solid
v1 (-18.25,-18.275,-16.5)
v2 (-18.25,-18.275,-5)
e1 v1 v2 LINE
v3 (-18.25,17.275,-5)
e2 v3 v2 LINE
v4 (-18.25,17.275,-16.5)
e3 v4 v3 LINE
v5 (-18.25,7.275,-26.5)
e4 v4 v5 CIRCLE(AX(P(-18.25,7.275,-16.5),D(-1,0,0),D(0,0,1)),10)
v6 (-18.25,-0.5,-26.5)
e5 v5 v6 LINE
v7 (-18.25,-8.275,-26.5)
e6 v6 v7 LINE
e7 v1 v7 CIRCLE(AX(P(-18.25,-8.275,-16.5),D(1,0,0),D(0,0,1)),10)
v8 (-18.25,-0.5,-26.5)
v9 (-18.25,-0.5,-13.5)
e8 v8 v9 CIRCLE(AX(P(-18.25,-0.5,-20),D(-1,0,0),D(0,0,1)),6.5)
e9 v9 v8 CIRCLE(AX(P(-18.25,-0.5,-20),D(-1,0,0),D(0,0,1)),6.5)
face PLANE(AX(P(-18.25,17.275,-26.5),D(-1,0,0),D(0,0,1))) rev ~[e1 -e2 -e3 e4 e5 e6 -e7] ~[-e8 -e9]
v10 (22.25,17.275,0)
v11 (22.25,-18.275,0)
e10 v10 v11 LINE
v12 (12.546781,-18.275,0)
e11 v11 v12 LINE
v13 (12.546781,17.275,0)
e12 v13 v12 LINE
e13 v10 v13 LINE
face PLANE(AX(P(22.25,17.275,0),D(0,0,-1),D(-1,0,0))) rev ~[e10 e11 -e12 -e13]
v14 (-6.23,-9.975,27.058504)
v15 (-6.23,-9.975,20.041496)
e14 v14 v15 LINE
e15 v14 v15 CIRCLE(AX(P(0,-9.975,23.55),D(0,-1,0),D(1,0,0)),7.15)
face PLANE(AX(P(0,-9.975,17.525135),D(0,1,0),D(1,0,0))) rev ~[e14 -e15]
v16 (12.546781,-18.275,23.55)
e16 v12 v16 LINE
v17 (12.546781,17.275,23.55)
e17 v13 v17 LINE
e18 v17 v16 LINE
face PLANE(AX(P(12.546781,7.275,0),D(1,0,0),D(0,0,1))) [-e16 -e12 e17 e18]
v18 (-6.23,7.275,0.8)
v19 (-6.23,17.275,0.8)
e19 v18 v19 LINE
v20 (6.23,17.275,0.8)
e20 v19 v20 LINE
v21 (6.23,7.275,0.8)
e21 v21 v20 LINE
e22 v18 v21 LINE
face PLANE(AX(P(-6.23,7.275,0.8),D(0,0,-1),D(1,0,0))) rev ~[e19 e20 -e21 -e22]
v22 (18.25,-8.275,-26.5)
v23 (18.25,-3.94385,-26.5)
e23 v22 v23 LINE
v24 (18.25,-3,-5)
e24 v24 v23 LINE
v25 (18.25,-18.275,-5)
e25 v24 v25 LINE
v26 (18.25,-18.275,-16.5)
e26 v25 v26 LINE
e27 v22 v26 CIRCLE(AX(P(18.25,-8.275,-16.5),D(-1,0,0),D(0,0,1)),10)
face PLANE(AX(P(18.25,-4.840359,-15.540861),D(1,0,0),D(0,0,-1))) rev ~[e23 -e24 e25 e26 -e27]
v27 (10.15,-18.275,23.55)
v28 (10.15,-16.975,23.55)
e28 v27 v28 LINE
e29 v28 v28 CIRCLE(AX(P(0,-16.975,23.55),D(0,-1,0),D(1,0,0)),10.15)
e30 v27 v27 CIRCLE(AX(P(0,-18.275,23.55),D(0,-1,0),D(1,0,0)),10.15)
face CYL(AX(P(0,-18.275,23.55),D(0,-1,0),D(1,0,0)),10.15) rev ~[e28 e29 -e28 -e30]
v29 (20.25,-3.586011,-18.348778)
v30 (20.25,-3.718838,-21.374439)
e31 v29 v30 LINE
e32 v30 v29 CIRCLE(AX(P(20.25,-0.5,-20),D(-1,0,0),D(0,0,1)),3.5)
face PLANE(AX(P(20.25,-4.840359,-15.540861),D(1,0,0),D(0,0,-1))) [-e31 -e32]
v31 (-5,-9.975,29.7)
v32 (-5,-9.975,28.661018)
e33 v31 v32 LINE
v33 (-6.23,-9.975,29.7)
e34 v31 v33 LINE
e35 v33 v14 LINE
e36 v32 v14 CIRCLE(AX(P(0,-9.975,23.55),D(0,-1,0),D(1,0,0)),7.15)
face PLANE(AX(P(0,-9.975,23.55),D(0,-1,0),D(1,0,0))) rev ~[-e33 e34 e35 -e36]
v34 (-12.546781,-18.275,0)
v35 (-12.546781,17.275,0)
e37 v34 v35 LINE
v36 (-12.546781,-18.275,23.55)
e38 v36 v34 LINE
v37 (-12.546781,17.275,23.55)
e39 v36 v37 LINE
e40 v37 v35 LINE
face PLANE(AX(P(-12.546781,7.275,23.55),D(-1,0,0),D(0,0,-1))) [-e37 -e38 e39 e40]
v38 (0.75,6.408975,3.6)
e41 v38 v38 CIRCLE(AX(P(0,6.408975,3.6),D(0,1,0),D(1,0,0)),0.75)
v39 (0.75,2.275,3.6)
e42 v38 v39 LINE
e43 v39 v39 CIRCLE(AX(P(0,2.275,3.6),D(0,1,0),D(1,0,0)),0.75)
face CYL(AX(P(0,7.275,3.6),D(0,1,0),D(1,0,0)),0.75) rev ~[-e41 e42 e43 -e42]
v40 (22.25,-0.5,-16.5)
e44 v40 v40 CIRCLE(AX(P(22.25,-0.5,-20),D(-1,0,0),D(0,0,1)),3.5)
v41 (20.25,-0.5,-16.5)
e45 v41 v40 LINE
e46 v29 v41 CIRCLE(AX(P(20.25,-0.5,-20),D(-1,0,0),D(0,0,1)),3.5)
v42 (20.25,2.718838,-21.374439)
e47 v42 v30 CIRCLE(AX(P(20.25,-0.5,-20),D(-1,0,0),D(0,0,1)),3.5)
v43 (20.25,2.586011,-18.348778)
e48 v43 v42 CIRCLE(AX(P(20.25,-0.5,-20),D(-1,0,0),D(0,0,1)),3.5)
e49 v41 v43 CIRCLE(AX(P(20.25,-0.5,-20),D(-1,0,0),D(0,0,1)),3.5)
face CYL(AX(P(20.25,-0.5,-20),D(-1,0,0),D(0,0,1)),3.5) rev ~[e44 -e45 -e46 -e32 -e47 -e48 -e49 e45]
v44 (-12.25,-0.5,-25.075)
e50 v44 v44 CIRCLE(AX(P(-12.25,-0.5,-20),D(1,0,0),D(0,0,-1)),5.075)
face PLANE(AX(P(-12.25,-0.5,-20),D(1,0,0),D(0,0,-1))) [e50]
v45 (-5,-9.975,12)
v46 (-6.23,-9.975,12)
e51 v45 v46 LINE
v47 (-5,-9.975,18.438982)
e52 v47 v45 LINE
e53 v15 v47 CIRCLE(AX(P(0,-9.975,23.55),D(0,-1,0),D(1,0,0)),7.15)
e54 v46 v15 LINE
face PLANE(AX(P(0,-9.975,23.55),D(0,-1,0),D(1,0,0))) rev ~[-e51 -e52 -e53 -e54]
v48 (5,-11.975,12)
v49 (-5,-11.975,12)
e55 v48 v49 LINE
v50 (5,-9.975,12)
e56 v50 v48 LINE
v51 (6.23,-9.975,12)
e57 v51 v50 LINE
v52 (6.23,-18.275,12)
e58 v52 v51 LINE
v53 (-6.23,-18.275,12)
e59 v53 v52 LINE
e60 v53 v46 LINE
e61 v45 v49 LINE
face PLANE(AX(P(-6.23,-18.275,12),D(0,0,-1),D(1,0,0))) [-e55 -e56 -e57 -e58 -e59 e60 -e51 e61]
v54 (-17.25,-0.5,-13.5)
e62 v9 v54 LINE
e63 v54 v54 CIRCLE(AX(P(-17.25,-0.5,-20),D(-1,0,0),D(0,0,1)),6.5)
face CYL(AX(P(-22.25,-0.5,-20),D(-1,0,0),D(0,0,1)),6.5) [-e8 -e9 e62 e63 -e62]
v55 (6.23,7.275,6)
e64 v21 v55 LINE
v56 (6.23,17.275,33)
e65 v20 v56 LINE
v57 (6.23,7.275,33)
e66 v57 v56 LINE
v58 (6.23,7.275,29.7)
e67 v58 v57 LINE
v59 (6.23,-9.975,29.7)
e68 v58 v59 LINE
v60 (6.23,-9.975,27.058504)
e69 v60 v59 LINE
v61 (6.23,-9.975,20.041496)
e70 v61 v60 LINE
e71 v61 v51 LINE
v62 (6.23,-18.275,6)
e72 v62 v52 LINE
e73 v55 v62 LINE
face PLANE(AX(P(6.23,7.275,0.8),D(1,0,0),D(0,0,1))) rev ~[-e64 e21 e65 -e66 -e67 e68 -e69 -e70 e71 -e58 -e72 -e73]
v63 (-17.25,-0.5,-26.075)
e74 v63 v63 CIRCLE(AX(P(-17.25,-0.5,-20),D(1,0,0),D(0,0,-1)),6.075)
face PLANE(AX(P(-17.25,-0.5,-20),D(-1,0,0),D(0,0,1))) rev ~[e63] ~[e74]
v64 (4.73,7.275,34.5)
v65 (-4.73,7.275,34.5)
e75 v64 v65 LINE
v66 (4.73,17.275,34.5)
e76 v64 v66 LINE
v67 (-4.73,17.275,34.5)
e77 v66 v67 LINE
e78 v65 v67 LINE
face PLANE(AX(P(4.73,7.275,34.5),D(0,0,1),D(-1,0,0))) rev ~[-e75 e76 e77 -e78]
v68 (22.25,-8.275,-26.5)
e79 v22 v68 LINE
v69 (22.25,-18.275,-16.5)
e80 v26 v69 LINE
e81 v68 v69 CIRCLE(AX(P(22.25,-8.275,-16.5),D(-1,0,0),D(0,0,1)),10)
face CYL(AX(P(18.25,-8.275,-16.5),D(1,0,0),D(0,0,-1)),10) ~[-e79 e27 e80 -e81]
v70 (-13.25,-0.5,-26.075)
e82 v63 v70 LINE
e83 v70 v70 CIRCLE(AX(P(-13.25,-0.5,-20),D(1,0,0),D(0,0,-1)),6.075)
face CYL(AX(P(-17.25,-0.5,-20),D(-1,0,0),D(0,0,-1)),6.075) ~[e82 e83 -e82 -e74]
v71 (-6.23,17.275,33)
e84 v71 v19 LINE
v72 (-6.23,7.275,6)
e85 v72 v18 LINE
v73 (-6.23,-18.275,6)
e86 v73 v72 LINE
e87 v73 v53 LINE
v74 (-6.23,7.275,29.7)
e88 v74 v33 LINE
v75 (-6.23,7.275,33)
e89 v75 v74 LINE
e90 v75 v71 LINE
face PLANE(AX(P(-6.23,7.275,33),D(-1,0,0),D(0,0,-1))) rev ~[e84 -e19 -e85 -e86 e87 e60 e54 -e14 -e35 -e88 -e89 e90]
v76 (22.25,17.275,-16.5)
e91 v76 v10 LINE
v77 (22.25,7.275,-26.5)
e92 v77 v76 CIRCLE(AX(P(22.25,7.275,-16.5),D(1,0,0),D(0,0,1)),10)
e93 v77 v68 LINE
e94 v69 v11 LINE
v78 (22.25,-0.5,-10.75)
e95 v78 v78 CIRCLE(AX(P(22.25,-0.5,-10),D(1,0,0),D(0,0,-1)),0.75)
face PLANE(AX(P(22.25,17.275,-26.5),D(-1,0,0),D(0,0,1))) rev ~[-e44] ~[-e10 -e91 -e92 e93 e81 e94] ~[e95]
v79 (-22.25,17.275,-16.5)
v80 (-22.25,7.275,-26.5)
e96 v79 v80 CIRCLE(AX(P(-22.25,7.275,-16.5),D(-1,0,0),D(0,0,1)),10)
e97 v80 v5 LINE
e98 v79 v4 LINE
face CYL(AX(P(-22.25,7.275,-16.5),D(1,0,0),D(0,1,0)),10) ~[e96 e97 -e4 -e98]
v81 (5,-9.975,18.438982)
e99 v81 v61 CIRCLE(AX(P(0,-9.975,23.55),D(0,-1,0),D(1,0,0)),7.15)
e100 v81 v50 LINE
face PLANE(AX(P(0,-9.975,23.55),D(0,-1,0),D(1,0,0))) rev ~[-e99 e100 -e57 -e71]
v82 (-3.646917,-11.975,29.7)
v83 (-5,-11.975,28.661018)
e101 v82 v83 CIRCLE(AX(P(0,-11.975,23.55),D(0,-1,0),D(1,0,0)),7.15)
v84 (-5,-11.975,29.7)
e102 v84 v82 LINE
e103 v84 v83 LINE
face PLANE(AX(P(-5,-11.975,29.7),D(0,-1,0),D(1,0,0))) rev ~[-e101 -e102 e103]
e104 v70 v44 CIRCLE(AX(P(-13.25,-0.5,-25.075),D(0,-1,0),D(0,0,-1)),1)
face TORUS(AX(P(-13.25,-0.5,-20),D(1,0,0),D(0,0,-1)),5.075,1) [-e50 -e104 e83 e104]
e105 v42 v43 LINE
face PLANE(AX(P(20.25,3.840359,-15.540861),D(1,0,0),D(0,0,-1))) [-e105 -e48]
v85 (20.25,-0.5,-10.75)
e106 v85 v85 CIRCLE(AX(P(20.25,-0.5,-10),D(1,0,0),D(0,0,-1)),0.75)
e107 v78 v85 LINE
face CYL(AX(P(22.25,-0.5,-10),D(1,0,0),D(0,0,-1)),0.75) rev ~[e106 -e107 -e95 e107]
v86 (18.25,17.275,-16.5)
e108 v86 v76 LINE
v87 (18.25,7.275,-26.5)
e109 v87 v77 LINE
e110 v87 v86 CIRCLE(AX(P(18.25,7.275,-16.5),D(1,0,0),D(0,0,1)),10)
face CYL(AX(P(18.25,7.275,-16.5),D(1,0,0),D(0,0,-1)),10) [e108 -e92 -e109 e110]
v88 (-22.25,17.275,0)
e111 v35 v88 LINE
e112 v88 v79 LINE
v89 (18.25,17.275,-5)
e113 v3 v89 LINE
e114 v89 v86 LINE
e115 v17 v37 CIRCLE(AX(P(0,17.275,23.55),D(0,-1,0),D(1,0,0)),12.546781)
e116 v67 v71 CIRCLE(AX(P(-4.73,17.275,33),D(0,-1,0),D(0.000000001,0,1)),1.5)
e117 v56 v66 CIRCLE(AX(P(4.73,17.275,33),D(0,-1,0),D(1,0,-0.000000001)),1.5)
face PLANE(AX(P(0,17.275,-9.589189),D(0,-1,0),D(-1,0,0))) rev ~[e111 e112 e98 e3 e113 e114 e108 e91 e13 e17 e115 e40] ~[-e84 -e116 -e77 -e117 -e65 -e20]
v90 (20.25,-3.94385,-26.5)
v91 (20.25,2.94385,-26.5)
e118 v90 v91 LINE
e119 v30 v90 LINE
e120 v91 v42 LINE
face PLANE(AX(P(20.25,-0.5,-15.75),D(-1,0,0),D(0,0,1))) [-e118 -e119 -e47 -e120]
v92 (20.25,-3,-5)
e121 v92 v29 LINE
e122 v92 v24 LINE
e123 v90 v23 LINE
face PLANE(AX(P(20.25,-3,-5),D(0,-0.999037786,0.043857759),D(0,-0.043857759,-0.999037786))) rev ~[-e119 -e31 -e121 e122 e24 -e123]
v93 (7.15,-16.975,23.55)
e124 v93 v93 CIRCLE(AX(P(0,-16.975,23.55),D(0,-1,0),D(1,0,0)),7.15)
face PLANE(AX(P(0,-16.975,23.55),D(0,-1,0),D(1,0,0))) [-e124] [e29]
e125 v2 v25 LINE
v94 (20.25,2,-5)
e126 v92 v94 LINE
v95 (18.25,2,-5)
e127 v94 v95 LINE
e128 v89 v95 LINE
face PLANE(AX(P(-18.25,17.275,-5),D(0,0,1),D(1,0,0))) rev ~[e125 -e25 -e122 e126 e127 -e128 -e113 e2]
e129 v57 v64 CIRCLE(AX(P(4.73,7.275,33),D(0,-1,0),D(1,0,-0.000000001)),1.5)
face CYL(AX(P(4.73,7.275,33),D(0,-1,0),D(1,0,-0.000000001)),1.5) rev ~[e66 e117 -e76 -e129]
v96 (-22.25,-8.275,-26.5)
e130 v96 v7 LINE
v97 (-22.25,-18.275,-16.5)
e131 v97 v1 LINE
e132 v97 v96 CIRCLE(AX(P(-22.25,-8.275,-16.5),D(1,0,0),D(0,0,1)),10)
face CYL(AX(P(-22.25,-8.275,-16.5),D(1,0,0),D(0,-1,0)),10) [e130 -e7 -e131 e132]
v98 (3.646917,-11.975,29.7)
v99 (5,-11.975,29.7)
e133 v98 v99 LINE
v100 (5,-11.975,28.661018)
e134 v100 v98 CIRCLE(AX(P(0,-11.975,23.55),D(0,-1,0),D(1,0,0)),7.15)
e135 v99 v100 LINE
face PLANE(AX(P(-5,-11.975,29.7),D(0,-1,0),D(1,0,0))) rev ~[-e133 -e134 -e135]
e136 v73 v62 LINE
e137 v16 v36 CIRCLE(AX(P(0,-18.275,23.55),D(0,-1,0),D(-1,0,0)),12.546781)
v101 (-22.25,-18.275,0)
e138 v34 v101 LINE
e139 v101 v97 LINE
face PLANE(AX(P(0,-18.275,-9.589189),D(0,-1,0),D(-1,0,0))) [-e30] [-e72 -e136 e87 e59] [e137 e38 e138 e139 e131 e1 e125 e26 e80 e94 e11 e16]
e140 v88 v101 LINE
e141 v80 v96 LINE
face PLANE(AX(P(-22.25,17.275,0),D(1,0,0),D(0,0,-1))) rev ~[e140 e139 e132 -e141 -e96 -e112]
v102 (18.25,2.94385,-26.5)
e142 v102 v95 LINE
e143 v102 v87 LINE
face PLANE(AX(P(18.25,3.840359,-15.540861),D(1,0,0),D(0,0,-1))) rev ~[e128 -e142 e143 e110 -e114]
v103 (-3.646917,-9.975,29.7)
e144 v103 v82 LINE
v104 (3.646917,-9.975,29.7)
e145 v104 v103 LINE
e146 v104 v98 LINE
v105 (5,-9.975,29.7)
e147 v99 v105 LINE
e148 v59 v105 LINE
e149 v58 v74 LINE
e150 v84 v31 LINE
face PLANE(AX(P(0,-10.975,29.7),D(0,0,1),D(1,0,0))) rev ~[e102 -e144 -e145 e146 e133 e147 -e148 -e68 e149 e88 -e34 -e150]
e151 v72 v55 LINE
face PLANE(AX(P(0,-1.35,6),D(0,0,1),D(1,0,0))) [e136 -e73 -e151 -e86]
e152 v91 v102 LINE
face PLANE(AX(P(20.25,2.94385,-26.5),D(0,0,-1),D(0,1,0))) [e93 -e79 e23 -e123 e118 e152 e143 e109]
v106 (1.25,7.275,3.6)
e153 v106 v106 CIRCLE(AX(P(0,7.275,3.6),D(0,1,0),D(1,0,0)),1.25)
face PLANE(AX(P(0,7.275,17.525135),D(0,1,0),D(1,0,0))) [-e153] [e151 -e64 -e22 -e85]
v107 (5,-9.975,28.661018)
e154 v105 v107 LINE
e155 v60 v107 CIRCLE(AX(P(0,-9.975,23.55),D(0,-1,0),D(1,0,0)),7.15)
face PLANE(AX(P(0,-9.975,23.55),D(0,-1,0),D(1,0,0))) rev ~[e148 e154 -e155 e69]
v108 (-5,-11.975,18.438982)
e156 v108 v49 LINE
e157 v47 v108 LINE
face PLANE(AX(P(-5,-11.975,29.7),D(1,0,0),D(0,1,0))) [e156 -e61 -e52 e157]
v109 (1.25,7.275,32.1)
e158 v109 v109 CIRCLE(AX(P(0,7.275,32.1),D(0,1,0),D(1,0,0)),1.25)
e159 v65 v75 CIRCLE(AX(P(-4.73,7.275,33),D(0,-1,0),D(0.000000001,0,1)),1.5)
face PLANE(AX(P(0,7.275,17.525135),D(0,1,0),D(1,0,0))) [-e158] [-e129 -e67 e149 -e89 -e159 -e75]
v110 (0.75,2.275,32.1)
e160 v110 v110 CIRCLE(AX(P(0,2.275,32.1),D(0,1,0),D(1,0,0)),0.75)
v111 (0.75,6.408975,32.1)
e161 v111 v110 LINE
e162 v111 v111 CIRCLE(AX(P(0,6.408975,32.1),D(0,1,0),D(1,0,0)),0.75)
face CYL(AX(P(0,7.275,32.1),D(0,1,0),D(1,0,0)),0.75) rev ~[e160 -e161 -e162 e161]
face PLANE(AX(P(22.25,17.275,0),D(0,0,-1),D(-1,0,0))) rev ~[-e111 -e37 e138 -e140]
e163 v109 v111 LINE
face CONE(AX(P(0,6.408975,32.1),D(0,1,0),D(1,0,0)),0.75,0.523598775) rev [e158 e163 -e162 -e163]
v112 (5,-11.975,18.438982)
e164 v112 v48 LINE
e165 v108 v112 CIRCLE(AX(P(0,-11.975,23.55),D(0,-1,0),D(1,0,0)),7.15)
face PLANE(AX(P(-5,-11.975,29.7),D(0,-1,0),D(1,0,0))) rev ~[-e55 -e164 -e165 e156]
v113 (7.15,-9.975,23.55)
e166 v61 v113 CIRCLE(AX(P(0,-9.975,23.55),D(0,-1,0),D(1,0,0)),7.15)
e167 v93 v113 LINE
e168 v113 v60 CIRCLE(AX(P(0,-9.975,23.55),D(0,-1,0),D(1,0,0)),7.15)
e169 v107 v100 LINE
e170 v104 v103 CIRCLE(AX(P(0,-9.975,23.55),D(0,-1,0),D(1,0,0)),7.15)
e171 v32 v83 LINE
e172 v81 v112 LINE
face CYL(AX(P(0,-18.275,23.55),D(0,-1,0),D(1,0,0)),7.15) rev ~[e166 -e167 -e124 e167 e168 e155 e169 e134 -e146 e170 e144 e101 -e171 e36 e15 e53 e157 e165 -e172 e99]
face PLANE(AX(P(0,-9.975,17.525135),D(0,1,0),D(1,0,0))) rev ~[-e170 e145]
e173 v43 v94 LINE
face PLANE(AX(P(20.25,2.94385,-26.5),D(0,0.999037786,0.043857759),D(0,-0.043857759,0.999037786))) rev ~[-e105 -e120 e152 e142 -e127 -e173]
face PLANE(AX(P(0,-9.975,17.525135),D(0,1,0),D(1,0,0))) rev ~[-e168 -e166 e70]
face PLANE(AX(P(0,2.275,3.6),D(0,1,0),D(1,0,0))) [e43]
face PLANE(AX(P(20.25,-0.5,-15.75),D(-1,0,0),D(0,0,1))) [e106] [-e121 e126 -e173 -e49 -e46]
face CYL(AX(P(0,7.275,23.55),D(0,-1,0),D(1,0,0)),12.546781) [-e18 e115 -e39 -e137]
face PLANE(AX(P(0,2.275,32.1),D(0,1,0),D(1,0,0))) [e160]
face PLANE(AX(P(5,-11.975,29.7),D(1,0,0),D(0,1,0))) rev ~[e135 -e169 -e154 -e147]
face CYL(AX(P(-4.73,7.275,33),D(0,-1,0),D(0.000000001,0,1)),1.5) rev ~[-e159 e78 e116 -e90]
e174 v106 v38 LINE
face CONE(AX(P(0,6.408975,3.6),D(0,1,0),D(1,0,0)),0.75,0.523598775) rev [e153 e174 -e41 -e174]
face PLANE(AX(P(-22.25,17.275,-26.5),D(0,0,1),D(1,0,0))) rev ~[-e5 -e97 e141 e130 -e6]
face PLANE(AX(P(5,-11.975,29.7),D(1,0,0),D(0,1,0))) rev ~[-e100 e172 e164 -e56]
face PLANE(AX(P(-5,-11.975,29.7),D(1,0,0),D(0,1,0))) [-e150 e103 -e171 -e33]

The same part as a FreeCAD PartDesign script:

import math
import FreeCAD as App
import Part
import Sketcher
from FreeCAD import Vector


def edges_at(feature, points):
    """Names of the edges that pass closest to the given points."""
    edges = feature.Shape.Edges
    near = lambda p: min(range(len(edges)), key=lambda i: edges[i].distToShape(Part.Vertex(*p))[0])
    return sorted({f"Edge{near(p) + 1}" for p in points})

doc = App.newDocument("Part")
params = doc.addObject("Spreadsheet::Sheet", "Params")
for row, (alias, value) in enumerate([
    ("sketch1_width", "12.46 mm"),
    ("sketch1_height", "17.25 mm"),
    ("pad1_length", "6 mm"),
    ("sketch2_diameter", "22.3 mm"),
    ("pad2_length", "8.3 mm"),
    ("pad2_length2", "17.25 mm"),
    ("sketch3_height", "29.7 mm"),
    ("sketch3_width", "12.46 mm"),
    ("sketch3_height2", "23.55 mm"),
    ("pad3_length", "17.25 mm"),
    ("sketch4_diameter", "1.5 mm"),
    ("pocket1_length", "5 mm"),
    ("chamfer_size", "0.5 mm"),
    ("chamfer_size2", "0.866025 mm"),
    ("sketch5_height", "23.7 mm"),
    ("sketch5_width", "12.46 mm"),
    ("pocket2_length", "17.25 mm"),
    ("sketch6_height", "23.55 mm"),
    ("pad4_length", "8.3 mm"),
    ("sketch7_radius", "1.5 mm"),
    ("sketch7_height", "32.2 mm"),
    ("sketch7_width", "12.46 mm"),
    ("sketch7_height2", "23.55 mm"),
    ("pad5_length", "10 mm"),
    ("sketch8_diameter", "22.3 mm"),
    ("sketch8_diameter2", "14.3 mm"),
    ("pad6_length", "8.3 mm"),
    ("sketch9_diameter", "20.3 mm"),
    ("sketch9_diameter2", "14.3 mm"),
    ("pocket3_length", "1.3 mm"),
    ("sketch10_width", "10 mm"),
    ("sketch10_height", "2 mm"),
    ("pocket4_length", "23.7 mm"),
    ("sketch11_height", "6 mm"),
    ("sketch11_width", "12.46 mm"),
    ("pocket5_length", "8.3 mm"),
    ("sketch12_width", "4 mm"),
    ("sketch12_width2", "36.5 mm"),
    ("sketch12_height", "26.5 mm"),
    ("sketch12_height2", "21.5 mm"),
    ("pad7_length", "35.55 mm"),
    ("sketch13_height", "21.5 mm"),
    ("pocket6_length", "2 mm"),
    ("sketch14_diameter", "7 mm"),
    ("fillet_radius", "10 mm"),
    ("sketch15_diameter", "13 mm"),
    ("pad8_length", "5 mm"),
    ("sketch16_diameter", "12.15 mm"),
    ("pad9_length", "5 mm"),
    ("fillet2_radius", "1 mm"),
    ("sketch17_height", "21.5 mm"),
    ("pad10_length", "2 mm"),
    ("sketch18_diameter", "1.5 mm"),
], start=1):
    params.set(f"A{row}", alias)
    params.set(f"B{row}", "=" + value)
    params.setAlias(f"B{row}", alias)

body = doc.addObject("PartDesign::Body", "Body")

sketch1 = body.newObject("Sketcher::SketchObject", "Sketch")
sketch1.AttachmentSupport = (doc.getObject("XY_Plane"), [""])
sketch1.MapMode = "FlatFace"
sketch1.addGeometry(Part.LineSegment(Vector(-6, 7, 0), Vector(-6, -10, 0)), False)
sketch1.addGeometry(Part.LineSegment(Vector(-6, -10, 0), Vector(6, -10, 0)), False)
sketch1.addGeometry(Part.LineSegment(Vector(6, -10, 0), Vector(6, 7, 0)), False)
sketch1.addGeometry(Part.LineSegment(Vector(6, 7, 0), Vector(-6, 7, 0)), False)
sketch1.addConstraint(Sketcher.Constraint("Coincident", 0, 2, 1, 1))
sketch1.addConstraint(Sketcher.Constraint("Coincident", 1, 2, 2, 1))
sketch1.addConstraint(Sketcher.Constraint("Coincident", 2, 2, 3, 1))
sketch1.addConstraint(Sketcher.Constraint("Coincident", 3, 2, 0, 1))
sketch1.addConstraint(Sketcher.Constraint("Vertical", 0))
sketch1.addConstraint(Sketcher.Constraint("Horizontal", 1))
sketch1.addConstraint(Sketcher.Constraint("Vertical", 2))
sketch1.addConstraint(Sketcher.Constraint("Horizontal", 3))
sketch1.addConstraint(Sketcher.Constraint("DistanceX", 1, 1, 1, 2, 12.46))
sketch1.addConstraint(Sketcher.Constraint("DistanceY", 0, 2, 0, 1, 17.25))
sketch1.addConstraint(Sketcher.Constraint("DistanceX", 0, 2, -1, 1, 6.23))
sketch1.addConstraint(Sketcher.Constraint("DistanceY", 0, 2, -1, 1, 9.975))
sketch1.setExpression("Constraints[8]", "Params.sketch1_width")
sketch1.setExpression("Constraints[9]", "Params.sketch1_height")
pad1 = body.newObject("PartDesign::Pad", "Pad")
pad1.Profile = sketch1
pad1.setExpression("Length", "Params.pad1_length")
body2 = doc.addObject("PartDesign::Body", "Body001")

sketch2 = body2.newObject("Sketcher::SketchObject", "Sketch001")
sketch2.AttachmentSupport = (doc.getObject("XZ_Plane001"), [""])
sketch2.MapMode = "FlatFace"
sketch2.AttachmentOffset = App.Placement(Vector(0, 0, 9.975), App.Rotation())
sketch2.addGeometry(Part.Circle(Vector(0, 24, 0), Vector(0, 0, 1), 13), False)
sketch2.addGeometry(Part.Circle(Vector(0, 24, 0), Vector(0, 0, 1), 11), False)
sketch2.addConstraint(Sketcher.Constraint("Coincident", 1, 3, 0, 3))
sketch2.addConstraint(Sketcher.Constraint("PointOnObject", 0, 3, -2))
sketch2.addConstraint(Sketcher.Constraint("Diameter", 1, 22.3))
sketch2.addConstraint(Sketcher.Constraint("DistanceY", -1, 1, 0, 3, 23.55))
sketch2.addConstraint(Sketcher.Constraint("Diameter", 0, 25.093562))
sketch2.setExpression("Constraints[2]", "Params.sketch2_diameter")
pad2 = body2.newObject("PartDesign::Pad", "Pad001")
pad2.Profile = sketch2
pad2.Type = "TwoLengths"
pad2.setExpression("Length", "Params.pad2_length")
pad2.setExpression("Length2", "Params.pad2_length2")
body.AllowCompound = True
doc.recompute()

boolean = body.newObject("PartDesign::Boolean", "Boolean")
boolean.Type = "Fuse"
boolean.addObjects([body2])

sketch3 = body.newObject("Sketcher::SketchObject", "Sketch002")
sketch3.AttachmentSupport = (doc.getObject("XZ_Plane"), [""])
sketch3.MapMode = "FlatFace"
sketch3.AttachmentOffset = App.Placement(Vector(0, 0, -7.275), App.Rotation())
sketch3.addGeometry(Part.LineSegment(Vector(13, 24, 0), Vector(13, 0, 0)), False)
sketch3.addGeometry(Part.LineSegment(Vector(13, 0, 0), Vector(6, 0, 0)), False)
sketch3.addGeometry(Part.LineSegment(Vector(6, 0, 0), Vector(6, 30, 0)), False)
sketch3.addGeometry(Part.LineSegment(Vector(6, 30, 0), Vector(-6, 30, 0)), False)
sketch3.addGeometry(Part.LineSegment(Vector(-6, 30, 0), Vector(-6, 0, 0)), False)
sketch3.addGeometry(Part.LineSegment(Vector(-6, 0, 0), Vector(-13, 0, 0)), False)
sketch3.addGeometry(Part.LineSegment(Vector(-13, 0, 0), Vector(-13, 24, 0)), False)
sketch3.addGeometry(Part.ArcOfCircle(Part.Circle(Vector(0, 24, 0), Vector(0, 0, 1), 13), math.radians(0), math.radians(180)), False)
sketch3.addConstraint(Sketcher.Constraint("Coincident", 0, 2, 1, 1))
sketch3.addConstraint(Sketcher.Constraint("Coincident", 1, 2, 2, 1))
sketch3.addConstraint(Sketcher.Constraint("Coincident", 2, 2, 3, 1))
sketch3.addConstraint(Sketcher.Constraint("Coincident", 3, 2, 4, 1))
sketch3.addConstraint(Sketcher.Constraint("Coincident", 4, 2, 5, 1))
sketch3.addConstraint(Sketcher.Constraint("Coincident", 5, 2, 6, 1))
sketch3.addConstraint(Sketcher.Constraint("Tangent", 6, 2, 7, 2))
sketch3.addConstraint(Sketcher.Constraint("Tangent", 7, 1, 0, 1))
sketch3.addConstraint(Sketcher.Constraint("Vertical", 0))
sketch3.addConstraint(Sketcher.Constraint("Horizontal", 1))
sketch3.addConstraint(Sketcher.Constraint("Vertical", 2))
sketch3.addConstraint(Sketcher.Constraint("Horizontal", 3))
sketch3.addConstraint(Sketcher.Constraint("Vertical", 4))
sketch3.addConstraint(Sketcher.Constraint("Horizontal", 5))
sketch3.addConstraint(Sketcher.Constraint("Vertical", 6))
sketch3.addConstraint(Sketcher.Constraint("Symmetric", 1, 2, 4, 2, -1, 1))
sketch3.addConstraint(Sketcher.Constraint("Symmetric", 0, 2, 5, 2, -2))
sketch3.addConstraint(Sketcher.Constraint("DistanceY", 2, 1, 2, 2, 29.7))
sketch3.addConstraint(Sketcher.Constraint("DistanceX", 3, 2, 3, 1, 12.46))
sketch3.addConstraint(Sketcher.Constraint("DistanceY", 0, 2, 0, 1, 23.55))
sketch3.addConstraint(Sketcher.Constraint("Radius", 7, 12.546781))
sketch3.setExpression("Constraints[17]", "Params.sketch3_height")
sketch3.setExpression("Constraints[18]", "Params.sketch3_width")
sketch3.setExpression("Constraints[19]", "Params.sketch3_height2")
pad3 = body.newObject("PartDesign::Pad", "Pad002")
pad3.Profile = sketch3
pad3.setExpression("Length", "Params.pad3_length")

sketch4 = body.newObject("Sketcher::SketchObject", "Sketch003")
sketch4.AttachmentSupport = (doc.getObject("XZ_Plane"), [""])
sketch4.MapMode = "FlatFace"
sketch4.AttachmentOffset = App.Placement(Vector(0, 0, -7.275), App.Rotation())
sketch4.addGeometry(Part.Circle(Vector(0, 3.6, 0), Vector(0, 0, 1), 0.8), False)
sketch4.addGeometry(Part.Circle(Vector(0, 32.1, 0), Vector(0, 0, 1), 0.8), False)
sketch4.addConstraint(Sketcher.Constraint("Equal", 0, 1))
sketch4.addConstraint(Sketcher.Constraint("PointOnObject", 0, 3, -2))
sketch4.addConstraint(Sketcher.Constraint("PointOnObject", 1, 3, -2))
sketch4.addConstraint(Sketcher.Constraint("Diameter", 0, 1.5))
sketch4.addConstraint(Sketcher.Constraint("DistanceY", -1, 1, 0, 3, 3.6))
sketch4.addConstraint(Sketcher.Constraint("DistanceY", -1, 1, 1, 3, 32.1))
sketch4.setExpression("Constraints[3]", "Params.sketch4_diameter")
pocket1 = body.newObject("PartDesign::Pocket", "Pocket")
pocket1.Profile = sketch4
pocket1.setExpression("Length", "Params.pocket1_length")
pocket1.Reversed = True
doc.recompute()

chamfer = body.newObject("PartDesign::Chamfer", "Chamfer")
chamfer.Base = (pocket1, edges_at(pocket1, [(-0.75, 7.275, 3.6), (-0.75, 7.275, 32.1)]))
chamfer.ChamferType = "Two distances"
chamfer.setExpression("Size", "Params.chamfer_size")
chamfer.setExpression("Size2", "Params.chamfer_size2")

sketch5 = body.newObject("Sketcher::SketchObject", "Sketch004")
sketch5.AttachmentSupport = (doc.getObject("XZ_Plane"), [""])
sketch5.MapMode = "FlatFace"
sketch5.AttachmentOffset = App.Placement(Vector(0, 0, -7.275), App.Rotation())
sketch5.addGeometry(Part.LineSegment(Vector(-6, 6, 0), Vector(-6, 30, 0)), False)
sketch5.addGeometry(Part.LineSegment(Vector(-6, 30, 0), Vector(6, 30, 0)), False)
sketch5.addGeometry(Part.LineSegment(Vector(6, 30, 0), Vector(6, 6, 0)), False)
sketch5.addGeometry(Part.LineSegment(Vector(6, 6, 0), Vector(-6, 6, 0)), False)
sketch5.addConstraint(Sketcher.Constraint("Coincident", 0, 2, 1, 1))
sketch5.addConstraint(Sketcher.Constraint("Coincident", 1, 2, 2, 1))
sketch5.addConstraint(Sketcher.Constraint("Coincident", 2, 2, 3, 1))
sketch5.addConstraint(Sketcher.Constraint("Coincident", 3, 2, 0, 1))
sketch5.addConstraint(Sketcher.Constraint("Vertical", 0))
sketch5.addConstraint(Sketcher.Constraint("Horizontal", 1))
sketch5.addConstraint(Sketcher.Constraint("Vertical", 2))
sketch5.addConstraint(Sketcher.Constraint("Horizontal", 3))
sketch5.addConstraint(Sketcher.Constraint("DistanceY", 0, 1, 0, 2, 23.7))
sketch5.addConstraint(Sketcher.Constraint("DistanceY", -1, 1, 2, 2, 6.0))
sketch5.addConstraint(Sketcher.Constraint("DistanceX", 1, 1, 1, 2, 12.46))
sketch5.addConstraint(Sketcher.Constraint("DistanceX", 0, 2, -1, 1, 6.23))
sketch5.setExpression("Constraints[8]", "Params.sketch5_height")
sketch5.setExpression("Constraints[10]", "Params.sketch5_width")
pocket2 = body.newObject("PartDesign::Pocket", "Pocket001")
pocket2.Profile = sketch5
pocket2.setExpression("Length", "Params.pocket2_length")
pocket2.Reversed = True

sketch6 = body.newObject("Sketcher::SketchObject", "Sketch005")
sketch6.AttachmentSupport = (doc.getObject("XZ_Plane"), [""])
sketch6.MapMode = "FlatFace"
sketch6.AttachmentOffset = App.Placement(Vector(0, 0, 18.275), App.Rotation())
sketch6.addGeometry(Part.LineSegment(Vector(-13, 24, 0), Vector(-13, 0, 0)), False)
sketch6.addGeometry(Part.LineSegment(Vector(-13, 0, 0), Vector(13, 0, 0)), False)
sketch6.addGeometry(Part.LineSegment(Vector(13, 0, 0), Vector(13, 24, 0)), False)
sketch6.addGeometry(Part.ArcOfCircle(Part.Circle(Vector(0, 24, 0), Vector(0, 0, 1), 13), math.radians(180), math.radians(360)), False)
sketch6.addConstraint(Sketcher.Constraint("Coincident", 0, 2, 1, 1))
sketch6.addConstraint(Sketcher.Constraint("Coincident", 1, 2, 2, 1))
sketch6.addConstraint(Sketcher.Constraint("Tangent", 2, 2, 3, 2))
sketch6.addConstraint(Sketcher.Constraint("Tangent", 3, 1, 0, 1))
sketch6.addConstraint(Sketcher.Constraint("Vertical", 0))
sketch6.addConstraint(Sketcher.Constraint("Horizontal", 1))
sketch6.addConstraint(Sketcher.Constraint("Vertical", 2))
sketch6.addConstraint(Sketcher.Constraint("Symmetric", 0, 2, 1, 2, -1, 1))
sketch6.addConstraint(Sketcher.Constraint("DistanceY", 0, 2, 0, 1, 23.55))
sketch6.addConstraint(Sketcher.Constraint("Radius", 3, 12.546781))
sketch6.setExpression("Constraints[8]", "Params.sketch6_height")
pad4 = body.newObject("PartDesign::Pad", "Pad003")
pad4.Profile = sketch6
pad4.setExpression("Length", "Params.pad4_length")
pad4.Reversed = True

sketch7 = body.newObject("Sketcher::SketchObject", "Sketch006")
sketch7.AttachmentSupport = (doc.getObject("XZ_Plane"), [""])
sketch7.MapMode = "FlatFace"
sketch7.AttachmentOffset = App.Placement(Vector(0, 0, -7.275), App.Rotation())
sketch7.addGeometry(Part.LineSegment(Vector(12.5, 0, 0), Vector(-12.5, 0, 0)), False)
sketch7.addGeometry(Part.LineSegment(Vector(-12.5, 0, 0), Vector(-12.5, 23.6, 0)), False)
sketch7.addGeometry(Part.ArcOfCircle(Part.Circle(Vector(0, 23.6, 0), Vector(0, 0, 1), 12.5), math.radians(0), math.radians(180)), False)
sketch7.addGeometry(Part.LineSegment(Vector(12.5, 23.6, 0), Vector(12.5, 0, 0)), False)
sketch7.addGeometry(Part.LineSegment(Vector(-6.2, 0.8, 0), Vector(6.2, 0.8, 0)), False)
sketch7.addGeometry(Part.LineSegment(Vector(6.2, 0.8, 0), Vector(6.2, 33, 0)), False)
sketch7.addGeometry(Part.ArcOfCircle(Part.Circle(Vector(4.7, 33, 0), Vector(0, 0, 1), 1.5), math.radians(0), math.radians(90)), False)
sketch7.addGeometry(Part.LineSegment(Vector(4.7, 34.5, 0), Vector(-4.7, 34.5, 0)), False)
sketch7.addGeometry(Part.ArcOfCircle(Part.Circle(Vector(-4.7, 33, 0), Vector(0, 0, 1), 1.5), math.radians(90), math.radians(180)), False)
sketch7.addGeometry(Part.LineSegment(Vector(-6.2, 33, 0), Vector(-6.2, 0.8, 0)), False)
sketch7.addConstraint(Sketcher.Constraint("Coincident", 0, 2, 1, 1))
sketch7.addConstraint(Sketcher.Constraint("Tangent", 1, 2, 2, 2))
sketch7.addConstraint(Sketcher.Constraint("Tangent", 2, 1, 3, 1))
sketch7.addConstraint(Sketcher.Constraint("Coincident", 3, 2, 0, 1))
sketch7.addConstraint(Sketcher.Constraint("Coincident", 4, 2, 5, 1))
sketch7.addConstraint(Sketcher.Constraint("Tangent", 5, 2, 6, 1))
sketch7.addConstraint(Sketcher.Constraint("Tangent", 6, 2, 7, 1))
sketch7.addConstraint(Sketcher.Constraint("Tangent", 7, 2, 8, 1))
sketch7.addConstraint(Sketcher.Constraint("Tangent", 8, 2, 9, 1))
sketch7.addConstraint(Sketcher.Constraint("Coincident", 9, 2, 4, 1))
sketch7.addConstraint(Sketcher.Constraint("Horizontal", 0))
sketch7.addConstraint(Sketcher.Constraint("Vertical", 1))
sketch7.addConstraint(Sketcher.Constraint("Vertical", 3))
sketch7.addConstraint(Sketcher.Constraint("Horizontal", 4))
sketch7.addConstraint(Sketcher.Constraint("Vertical", 5))
sketch7.addConstraint(Sketcher.Constraint("Horizontal", 7))
sketch7.addConstraint(Sketcher.Constraint("Vertical", 9))
sketch7.addConstraint(Sketcher.Constraint("Equal", 6, 8))
sketch7.addConstraint(Sketcher.Constraint("Symmetric", 0, 2, 3, 2, -1, 1))
sketch7.addConstraint(Sketcher.Constraint("Radius", 6, 1.5))
sketch7.addConstraint(Sketcher.Constraint("DistanceY", 5, 1, 5, 2, 32.2))
sketch7.addConstraint(Sketcher.Constraint("DistanceY", -1, 1, 6, 3, 33.0))
sketch7.addConstraint(Sketcher.Constraint("DistanceX", 4, 1, 4, 2, 12.46))
sketch7.addConstraint(Sketcher.Constraint("DistanceY", 1, 1, 1, 2, 23.55))
sketch7.addConstraint(Sketcher.Constraint("DistanceX", -1, 1, 6, 3, 4.73))
sketch7.addConstraint(Sketcher.Constraint("Radius", 2, 12.546781))
sketch7.setExpression("Constraints[19]", "Params.sketch7_radius")
sketch7.setExpression("Constraints[20]", "Params.sketch7_height")
sketch7.setExpression("Constraints[22]", "Params.sketch7_width")
sketch7.setExpression("Constraints[23]", "Params.sketch7_height2")
pad5 = body.newObject("PartDesign::Pad", "Pad004")
pad5.Profile = sketch7
pad5.setExpression("Length", "Params.pad5_length")
pad5.Reversed = True

sketch8 = body.newObject("Sketcher::SketchObject", "Sketch007")
sketch8.AttachmentSupport = (doc.getObject("XZ_Plane"), [""])
sketch8.MapMode = "FlatFace"
sketch8.AttachmentOffset = App.Placement(Vector(0, 0, 18.275), App.Rotation())
sketch8.addGeometry(Part.Circle(Vector(0, 24, 0), Vector(0, 0, 1), 11), False)
sketch8.addGeometry(Part.Circle(Vector(0, 24, 0), Vector(0, 0, 1), 7), False)
sketch8.addConstraint(Sketcher.Constraint("Coincident", 1, 3, 0, 3))
sketch8.addConstraint(Sketcher.Constraint("PointOnObject", 0, 3, -2))
sketch8.addConstraint(Sketcher.Constraint("Diameter", 0, 22.3))
sketch8.addConstraint(Sketcher.Constraint("Diameter", 1, 14.3))
sketch8.addConstraint(Sketcher.Constraint("DistanceY", -1, 1, 0, 3, 23.55))
sketch8.setExpression("Constraints[2]", "Params.sketch8_diameter")
sketch8.setExpression("Constraints[3]", "Params.sketch8_diameter2")
pad6 = body.newObject("PartDesign::Pad", "Pad005")
pad6.Profile = sketch8
pad6.setExpression("Length", "Params.pad6_length")
pad6.Reversed = True

sketch9 = body.newObject("Sketcher::SketchObject", "Sketch008")
sketch9.AttachmentSupport = (doc.getObject("XZ_Plane"), [""])
sketch9.MapMode = "FlatFace"
sketch9.AttachmentOffset = App.Placement(Vector(0, 0, 18.275), App.Rotation())
sketch9.addGeometry(Part.Circle(Vector(0, 24, 0), Vector(0, 0, 1), 10), False)
sketch9.addGeometry(Part.Circle(Vector(0, 24, 0), Vector(0, 0, 1), 7), False)
sketch9.addConstraint(Sketcher.Constraint("Coincident", 1, 3, 0, 3))
sketch9.addConstraint(Sketcher.Constraint("PointOnObject", 0, 3, -2))
sketch9.addConstraint(Sketcher.Constraint("Diameter", 0, 20.3))
sketch9.addConstraint(Sketcher.Constraint("Diameter", 1, 14.3))
sketch9.addConstraint(Sketcher.Constraint("DistanceY", -1, 1, 0, 3, 23.55))
sketch9.setExpression("Constraints[2]", "Params.sketch9_diameter")
sketch9.setExpression("Constraints[3]", "Params.sketch9_diameter2")
pocket3 = body.newObject("PartDesign::Pocket", "Pocket002")
pocket3.Profile = sketch9
pocket3.setExpression("Length", "Params.pocket3_length")

sketch10 = body.newObject("Sketcher::SketchObject", "Sketch009")
sketch10.AttachmentSupport = (doc.getObject("XY_Plane"), [""])
sketch10.MapMode = "FlatFace"
sketch10.AttachmentOffset = App.Placement(Vector(0, 0, 29.7), App.Rotation())
sketch10.addGeometry(Part.LineSegment(Vector(-5, -10, 0), Vector(-5, -12, 0)), False)
sketch10.addGeometry(Part.LineSegment(Vector(-5, -12, 0), Vector(5, -12, 0)), False)
sketch10.addGeometry(Part.LineSegment(Vector(5, -12, 0), Vector(5, -10, 0)), False)
sketch10.addGeometry(Part.LineSegment(Vector(5, -10, 0), Vector(-5, -10, 0)), False)
sketch10.addConstraint(Sketcher.Constraint("Coincident", 0, 2, 1, 1))
sketch10.addConstraint(Sketcher.Constraint("Coincident", 1, 2, 2, 1))
sketch10.addConstraint(Sketcher.Constraint("Coincident", 2, 2, 3, 1))
sketch10.addConstraint(Sketcher.Constraint("Coincident", 3, 2, 0, 1))
sketch10.addConstraint(Sketcher.Constraint("Vertical", 0))
sketch10.addConstraint(Sketcher.Constraint("Horizontal", 1))
sketch10.addConstraint(Sketcher.Constraint("Vertical", 2))
sketch10.addConstraint(Sketcher.Constraint("Horizontal", 3))
sketch10.addConstraint(Sketcher.Constraint("DistanceX", 1, 1, 1, 2, 10.0))
sketch10.addConstraint(Sketcher.Constraint("DistanceY", 0, 2, 0, 1, 2.0))
sketch10.addConstraint(Sketcher.Constraint("DistanceX", 0, 2, -1, 1, 5.0))
sketch10.addConstraint(Sketcher.Constraint("DistanceY", 0, 2, -1, 1, 11.975))
sketch10.setExpression("Constraints[8]", "Params.sketch10_width")
sketch10.setExpression("Constraints[9]", "Params.sketch10_height")
pocket4 = body.newObject("PartDesign::Pocket", "Pocket003")
pocket4.Profile = sketch10
pocket4.setExpression("Length", "Params.pocket4_length")

sketch11 = body.newObject("Sketcher::SketchObject", "Sketch010")
sketch11.AttachmentSupport = (doc.getObject("XZ_Plane"), [""])
sketch11.MapMode = "FlatFace"
sketch11.AttachmentOffset = App.Placement(Vector(0, 0, 18.275), App.Rotation())
sketch11.addGeometry(Part.LineSegment(Vector(-6, 12, 0), Vector(-6, 6, 0)), False)
sketch11.addGeometry(Part.LineSegment(Vector(-6, 6, 0), Vector(6, 6, 0)), False)
sketch11.addGeometry(Part.LineSegment(Vector(6, 6, 0), Vector(6, 12, 0)), False)
sketch11.addGeometry(Part.LineSegment(Vector(6, 12, 0), Vector(-6, 12, 0)), False)
sketch11.addConstraint(Sketcher.Constraint("Coincident", 0, 2, 1, 1))
sketch11.addConstraint(Sketcher.Constraint("Coincident", 1, 2, 2, 1))
sketch11.addConstraint(Sketcher.Constraint("Coincident", 2, 2, 3, 1))
sketch11.addConstraint(Sketcher.Constraint("Coincident", 3, 2, 0, 1))
sketch11.addConstraint(Sketcher.Constraint("Vertical", 0))
sketch11.addConstraint(Sketcher.Constraint("Horizontal", 1))
sketch11.addConstraint(Sketcher.Constraint("Vertical", 2))
sketch11.addConstraint(Sketcher.Constraint("Horizontal", 3))
sketch11.addConstraint(Sketcher.Constraint("DistanceY", 0, 2, 0, 1, 6.0))
sketch11.addConstraint(Sketcher.Constraint("DistanceY", -1, 1, 0, 2, 6.0))
sketch11.addConstraint(Sketcher.Constraint("DistanceX", 1, 1, 1, 2, 12.46))
sketch11.addConstraint(Sketcher.Constraint("DistanceX", 0, 2, -1, 1, 6.23))
sketch11.setExpression("Constraints[8]", "Params.sketch11_height")
sketch11.setExpression("Constraints[10]", "Params.sketch11_width")
pocket5 = body.newObject("PartDesign::Pocket", "Pocket004")
pocket5.Profile = sketch11
pocket5.setExpression("Length", "Params.pocket5_length")

sketch12 = body.newObject("Sketcher::SketchObject", "Sketch011")
sketch12.AttachmentSupport = (doc.getObject("XZ_Plane"), [""])
sketch12.MapMode = "FlatFace"
sketch12.AttachmentOffset = App.Placement(Vector(0, 0, -17.275), App.Rotation())
sketch12.addGeometry(Part.LineSegment(Vector(22.2, 0, 0), Vector(22.2, -26.5, 0)), False)
sketch12.addGeometry(Part.LineSegment(Vector(22.2, -26.5, 0), Vector(18.2, -26.5, 0)), False)
sketch12.addGeometry(Part.LineSegment(Vector(18.2, -26.5, 0), Vector(18.2, -5, 0)), False)
sketch12.addGeometry(Part.LineSegment(Vector(18.2, -5, 0), Vector(-18.2, -5, 0)), False)
sketch12.addGeometry(Part.LineSegment(Vector(-18.2, -5, 0), Vector(-18.2, -26.5, 0)), False)
sketch12.addGeometry(Part.LineSegment(Vector(-18.2, -26.5, 0), Vector(-22.2, -26.5, 0)), False)
sketch12.addGeometry(Part.LineSegment(Vector(-22.2, -26.5, 0), Vector(-22.2, 0, 0)), False)
sketch12.addGeometry(Part.LineSegment(Vector(-22.2, 0, 0), Vector(22.2, 0, 0)), False)
sketch12.addConstraint(Sketcher.Constraint("Coincident", 0, 2, 1, 1))
sketch12.addConstraint(Sketcher.Constraint("Coincident", 1, 2, 2, 1))
sketch12.addConstraint(Sketcher.Constraint("Coincident", 2, 2, 3, 1))
sketch12.addConstraint(Sketcher.Constraint("Coincident", 3, 2, 4, 1))
sketch12.addConstraint(Sketcher.Constraint("Coincident", 4, 2, 5, 1))
sketch12.addConstraint(Sketcher.Constraint("Coincident", 5, 2, 6, 1))
sketch12.addConstraint(Sketcher.Constraint("Coincident", 6, 2, 7, 1))
sketch12.addConstraint(Sketcher.Constraint("Coincident", 7, 2, 0, 1))
sketch12.addConstraint(Sketcher.Constraint("Vertical", 0))
sketch12.addConstraint(Sketcher.Constraint("Horizontal", 1))
sketch12.addConstraint(Sketcher.Constraint("Vertical", 2))
sketch12.addConstraint(Sketcher.Constraint("Horizontal", 3))
sketch12.addConstraint(Sketcher.Constraint("Vertical", 4))
sketch12.addConstraint(Sketcher.Constraint("Horizontal", 5))
sketch12.addConstraint(Sketcher.Constraint("Vertical", 6))
sketch12.addConstraint(Sketcher.Constraint("Horizontal", 7))
sketch12.addConstraint(Sketcher.Constraint("Symmetric", 6, 2, 7, 2, -1, 1))
sketch12.addConstraint(Sketcher.Constraint("Symmetric", 1, 2, 4, 2, -2))
sketch12.addConstraint(Sketcher.Constraint("DistanceX", 1, 2, 1, 1, 4.0))
sketch12.addConstraint(Sketcher.Constraint("DistanceX", 3, 2, 3, 1, 36.5))
sketch12.addConstraint(Sketcher.Constraint("DistanceY", 0, 2, 0, 1, 26.5))
sketch12.addConstraint(Sketcher.Constraint("DistanceY", 2, 1, 2, 2, 21.5))
sketch12.setExpression("Constraints[18]", "Params.sketch12_width")
sketch12.setExpression("Constraints[19]", "Params.sketch12_width2")
sketch12.setExpression("Constraints[20]", "Params.sketch12_height")
sketch12.setExpression("Constraints[21]", "Params.sketch12_height2")
pad7 = body.newObject("PartDesign::Pad", "Pad006")
pad7.Profile = sketch12
pad7.setExpression("Length", "Params.pad7_length")

sketch13 = body.newObject("Sketcher::SketchObject", "Sketch012")
sketch13.AttachmentSupport = (doc.getObject("YZ_Plane"), [""])
sketch13.MapMode = "FlatFace"
sketch13.AttachmentOffset = App.Placement(Vector(0, 0, 18.25), App.Rotation())
sketch13.addGeometry(Part.LineSegment(Vector(5, -26, 0), Vector(-6, -26, 0)), False)
sketch13.addGeometry(Part.LineSegment(Vector(-6, -26, 0), Vector(-6, -5, 0)), False)
sketch13.addGeometry(Part.LineSegment(Vector(-6, -5, 0), Vector(5, -5, 0)), False)
sketch13.addGeometry(Part.LineSegment(Vector(5, -5, 0), Vector(5, -26, 0)), False)
sketch13.addConstraint(Sketcher.Constraint("Coincident", 0, 2, 1, 1))
sketch13.addConstraint(Sketcher.Constraint("Coincident", 1, 2, 2, 1))
sketch13.addConstraint(Sketcher.Constraint("Coincident", 2, 2, 3, 1))
sketch13.addConstraint(Sketcher.Constraint("Coincident", 3, 2, 0, 1))
sketch13.addConstraint(Sketcher.Constraint("Horizontal", 0))
sketch13.addConstraint(Sketcher.Constraint("Vertical", 1))
sketch13.addConstraint(Sketcher.Constraint("Horizontal", 2))
sketch13.addConstraint(Sketcher.Constraint("Vertical", 3))
sketch13.addConstraint(Sketcher.Constraint("DistanceY", 1, 1, 1, 2, 21.5))
sketch13.addConstraint(Sketcher.Constraint("DistanceY", 1, 2, -1, 1, 5.0))
sketch13.addConstraint(Sketcher.Constraint("DistanceX", 0, 2, 0, 1, 11.438293))
sketch13.addConstraint(Sketcher.Constraint("DistanceX", 0, 2, -1, 1, 6.219146))
sketch13.setExpression("Constraints[8]", "Params.sketch13_height")
pocket6 = body.newObject("PartDesign::Pocket", "Pocket005")
pocket6.Profile = sketch13
pocket6.setExpression("Length", "Params.pocket6_length")
pocket6.Reversed = True

sketch14 = body.newObject("Sketcher::SketchObject", "Sketch013")
sketch14.AttachmentSupport = (doc.getObject("YZ_Plane"), [""])
sketch14.MapMode = "FlatFace"
sketch14.AttachmentOffset = App.Placement(Vector(0, 0, 20.25), App.Rotation())
sketch14.addGeometry(Part.Circle(Vector(-0.5, -20, 0), Vector(0, 0, 1), 3.5), False)
sketch14.addConstraint(Sketcher.Constraint("Diameter", 0, 7.0))
sketch14.addConstraint(Sketcher.Constraint("DistanceY", 0, 3, -1, 1, 20.0))
sketch14.addConstraint(Sketcher.Constraint("DistanceX", 0, 3, -1, 1, 0.5))
sketch14.setExpression("Constraints[0]", "Params.sketch14_diameter")
pocket7 = body.newObject("PartDesign::Pocket", "Pocket006")
pocket7.Profile = sketch14
pocket7.Type = "ThroughAll"
pocket7.Midplane = True
doc.recompute()

fillet = body.newObject("PartDesign::Fillet", "Fillet")
fillet.Base = (pocket7, edges_at(pocket7, [
    (20.25, 17.275, -26.5),
    (-20.25, 17.275, -26.5),
    (-20.25, -18.275, -26.5),
    (20.25, -18.275, -26.5),
]))
fillet.setExpression("Radius", "Params.fillet_radius")

sketch15 = body.newObject("Sketcher::SketchObject", "Sketch014")
sketch15.AttachmentSupport = (doc.getObject("YZ_Plane"), [""])
sketch15.MapMode = "FlatFace"
sketch15.AttachmentOffset = App.Placement(Vector(0, 0, -22.25), App.Rotation())
sketch15.addGeometry(Part.Circle(Vector(0, -20, 0), Vector(0, 0, 1), 6), False)
sketch15.addConstraint(Sketcher.Constraint("Diameter", 0, 13.0))
sketch15.addConstraint(Sketcher.Constraint("DistanceY", 0, 3, -1, 1, 20.0))
sketch15.addConstraint(Sketcher.Constraint("DistanceX", 0, 3, -1, 1, 0.5))
sketch15.setExpression("Constraints[0]", "Params.sketch15_diameter")
pad8 = body.newObject("PartDesign::Pad", "Pad007")
pad8.Profile = sketch15
pad8.setExpression("Length", "Params.pad8_length")

sketch16 = body.newObject("Sketcher::SketchObject", "Sketch015")
sketch16.AttachmentSupport = (doc.getObject("YZ_Plane"), [""])
sketch16.MapMode = "FlatFace"
sketch16.AttachmentOffset = App.Placement(Vector(0, 0, -17.25), App.Rotation())
sketch16.addGeometry(Part.Circle(Vector(0, -20, 0), Vector(0, 0, 1), 6), False)
sketch16.addConstraint(Sketcher.Constraint("Diameter", 0, 12.15))
sketch16.addConstraint(Sketcher.Constraint("DistanceY", 0, 3, -1, 1, 20.0))
sketch16.addConstraint(Sketcher.Constraint("DistanceX", 0, 3, -1, 1, 0.5))
sketch16.setExpression("Constraints[0]", "Params.sketch16_diameter")
pad9 = body.newObject("PartDesign::Pad", "Pad008")
pad9.Profile = sketch16
pad9.setExpression("Length", "Params.pad9_length")
doc.recompute()

fillet2 = body.newObject("PartDesign::Fillet", "Fillet001")
fillet2.Base = (pad9, edges_at(pad9, [(-12.25, -0.5, -13.925)]))
fillet2.setExpression("Radius", "Params.fillet2_radius")

sketch17 = body.newObject("Sketcher::SketchObject", "Sketch016")
sketch17.AttachmentSupport = (doc.getObject("YZ_Plane"), [""])
sketch17.MapMode = "FlatFace"
sketch17.AttachmentOffset = App.Placement(Vector(0, 0, 20.25), App.Rotation())
sketch17.addGeometry(Part.LineSegment(Vector(2.9, -26.5, 0), Vector(2, -5, 0)), False)
sketch17.addGeometry(Part.LineSegment(Vector(2, -5, 0), Vector(5.2, -5, 0)), False)
sketch17.addGeometry(Part.LineSegment(Vector(5.2, -5, 0), Vector(5.2, -26.5, 0)), False)
sketch17.addGeometry(Part.LineSegment(Vector(5.2, -26.5, 0), Vector(2.9, -26.5, 0)), False)
sketch17.addGeometry(Part.LineSegment(Vector(-3, -5, 0), Vector(-3.9, -26.5, 0)), False)
sketch17.addGeometry(Part.LineSegment(Vector(-3.9, -26.5, 0), Vector(-6.2, -26.5, 0)), False)
sketch17.addGeometry(Part.LineSegment(Vector(-6.2, -26.5, 0), Vector(-6.2, -5, 0)), False)
sketch17.addGeometry(Part.LineSegment(Vector(-6.2, -5, 0), Vector(-3, -5, 0)), False)
sketch17.addConstraint(Sketcher.Constraint("Coincident", 0, 2, 1, 1))
sketch17.addConstraint(Sketcher.Constraint("Coincident", 1, 2, 2, 1))
sketch17.addConstraint(Sketcher.Constraint("Coincident", 2, 2, 3, 1))
sketch17.addConstraint(Sketcher.Constraint("Coincident", 3, 2, 0, 1))
sketch17.addConstraint(Sketcher.Constraint("Coincident", 4, 2, 5, 1))
sketch17.addConstraint(Sketcher.Constraint("Coincident", 5, 2, 6, 1))
sketch17.addConstraint(Sketcher.Constraint("Coincident", 6, 2, 7, 1))
sketch17.addConstraint(Sketcher.Constraint("Coincident", 7, 2, 4, 1))
sketch17.addConstraint(Sketcher.Constraint("Horizontal", 1))
sketch17.addConstraint(Sketcher.Constraint("Vertical", 2))
sketch17.addConstraint(Sketcher.Constraint("Horizontal", 3))
sketch17.addConstraint(Sketcher.Constraint("Horizontal", 5))
sketch17.addConstraint(Sketcher.Constraint("Vertical", 6))
sketch17.addConstraint(Sketcher.Constraint("Horizontal", 7))
sketch17.addConstraint(Sketcher.Constraint("Horizontal", 3, 2, 4, 2))
sketch17.addConstraint(Sketcher.Constraint("Horizontal", 1, 2, 6, 2))
sketch17.addConstraint(Sketcher.Constraint("Equal", 3, 5))
sketch17.addConstraint(Sketcher.Constraint("Equal", 1, 7))
sketch17.addConstraint(Sketcher.Constraint("DistanceY", 2, 2, 2, 1, 21.5))
sketch17.addConstraint(Sketcher.Constraint("DistanceX", -1, 1, 0, 2, 2.0))
sketch17.addConstraint(Sketcher.Constraint("DistanceY", 0, 2, -1, 1, 5.0))
sketch17.addConstraint(Sketcher.Constraint("DistanceX", 7, 2, -1, 1, 3.0))
sketch17.addConstraint(Sketcher.Constraint("DistanceX", 4, 2, 3, 2, 6.8877))
sketch17.addConstraint(Sketcher.Constraint("DistanceX", 1, 1, 1, 2, 3.219146))
sketch17.setExpression("Constraints[18]", "Params.sketch17_height")
pad10 = body.newObject("PartDesign::Pad", "Pad009")
pad10.Profile = sketch17
pad10.setExpression("Length", "Params.pad10_length")
pad10.Reversed = True

sketch18 = body.newObject("Sketcher::SketchObject", "Sketch017")
sketch18.AttachmentSupport = (doc.getObject("YZ_Plane"), [""])
sketch18.MapMode = "FlatFace"
sketch18.AttachmentOffset = App.Placement(Vector(0, 0, 22.25), App.Rotation())
sketch18.addGeometry(Part.Circle(Vector(-0.5, -10, 0), Vector(0, 0, 1), 0.8), False)
sketch18.addConstraint(Sketcher.Constraint("Diameter", 0, 1.5))
sketch18.addConstraint(Sketcher.Constraint("DistanceY", 0, 3, -1, 1, 10.0))
sketch18.addConstraint(Sketcher.Constraint("DistanceX", 0, 3, -1, 1, 0.5))
sketch18.setExpression("Constraints[0]", "Params.sketch18_diameter")
pocket8 = body.newObject("PartDesign::Pocket", "Pocket007")
pocket8.Profile = sketch18
pocket8.Type = "UpToFirst"

doc.recompute()
